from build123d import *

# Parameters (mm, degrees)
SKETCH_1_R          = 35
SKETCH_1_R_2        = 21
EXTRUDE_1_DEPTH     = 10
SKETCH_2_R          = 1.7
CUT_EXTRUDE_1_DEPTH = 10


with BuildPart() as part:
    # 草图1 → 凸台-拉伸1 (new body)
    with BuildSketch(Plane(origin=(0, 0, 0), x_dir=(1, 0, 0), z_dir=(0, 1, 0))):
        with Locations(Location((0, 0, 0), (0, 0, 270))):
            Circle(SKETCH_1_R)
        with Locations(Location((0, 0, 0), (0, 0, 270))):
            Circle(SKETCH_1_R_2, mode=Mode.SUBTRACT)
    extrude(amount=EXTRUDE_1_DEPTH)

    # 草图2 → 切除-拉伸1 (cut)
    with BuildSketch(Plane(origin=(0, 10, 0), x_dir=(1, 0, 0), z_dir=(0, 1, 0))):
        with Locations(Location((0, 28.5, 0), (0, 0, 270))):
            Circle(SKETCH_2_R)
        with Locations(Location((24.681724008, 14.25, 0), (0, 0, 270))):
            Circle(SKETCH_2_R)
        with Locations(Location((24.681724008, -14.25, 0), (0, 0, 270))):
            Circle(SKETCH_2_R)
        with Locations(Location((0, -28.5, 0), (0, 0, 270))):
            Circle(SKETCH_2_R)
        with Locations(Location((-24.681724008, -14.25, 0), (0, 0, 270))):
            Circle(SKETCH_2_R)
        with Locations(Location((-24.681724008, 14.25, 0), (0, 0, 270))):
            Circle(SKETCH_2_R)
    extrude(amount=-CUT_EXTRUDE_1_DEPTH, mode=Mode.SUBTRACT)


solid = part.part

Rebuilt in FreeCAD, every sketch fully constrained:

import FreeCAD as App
import Part
import Sketcher

V = App.Vector
Q = App.Units.Quantity

doc = App.newDocument("Part")
body = doc.addObject("PartDesign::Body", "Body")

sketch1 = doc.addObject("Sketcher::SketchObject", "Sketch")
body.addObject(sketch1)
sketch1.AttachmentSupport = (doc.XZ_Plane, [""])
sketch1.MapMode = "FlatFace"
sketch1.addGeometry(Part.Circle(V(0, 0, 0), V(0, 0, 1), 35), False)
sketch1.addGeometry(Part.Circle(V(0, 0, 0), V(0, 0, 1), 21), False)
sketch1.addConstraint(Sketcher.Constraint("Coincident", 0, 3, -1, 1))
sketch1.addConstraint(Sketcher.Constraint("Coincident", 1, 3, -1, 1))
sketch1.addConstraint(Sketcher.Constraint("Diameter", 0, Q("70 mm")))
sketch1.addConstraint(Sketcher.Constraint("Diameter", 1, Q("42 mm")))
pad1 = doc.addObject("PartDesign::Pad", "Pad")
body.addObject(pad1)
pad1.Profile = sketch1
pad1.Length = 10
pad1.Reversed = True

sketch2 = doc.addObject("Sketcher::SketchObject", "Sketch001")
body.addObject(sketch2)
sketch2.AttachmentSupport = (doc.XZ_Plane, [""])
sketch2.MapMode = "FlatFace"
sketch2.AttachmentOffset = App.Placement(V(0, 0, -10), App.Rotation())
sketch2.addGeometry(Part.Circle(V(0, -28.5, 0), V(0, 0, 1), 1.7), False)
sketch2.addGeometry(Part.Circle(V(24.7, -14.2, 0), V(0, 0, 1), 1.7), False)
sketch2.addGeometry(Part.Circle(V(24.7, 14.2, 0), V(0, 0, 1), 1.7), False)
sketch2.addGeometry(Part.Circle(V(0, 28.5, 0), V(0, 0, 1), 1.7), False)
sketch2.addGeometry(Part.Circle(V(-24.7, 14.2, 0), V(0, 0, 1), 1.7), False)
sketch2.addGeometry(Part.Circle(V(-24.7, -14.2, 0), V(0, 0, 1), 1.7), False)
sketch2.addConstraint(Sketcher.Constraint("Equal", 0, 1))
sketch2.addConstraint(Sketcher.Constraint("Equal", 1, 2))
sketch2.addConstraint(Sketcher.Constraint("Equal", 2, 3))
sketch2.addConstraint(Sketcher.Constraint("Equal", 3, 4))
sketch2.addConstraint(Sketcher.Constraint("Equal", 4, 5))
sketch2.addConstraint(Sketcher.Constraint("Symmetric", 0, 3, 3, 3, -1, 1))
sketch2.addConstraint(Sketcher.Constraint("Symmetric", 1, 3, 4, 3, -1, 1))
sketch2.addConstraint(Sketcher.Constraint("Symmetric", 2, 3, 5, 3, -1, 1))
sketch2.addConstraint(Sketcher.Constraint("Symmetric", 2, 3, 4, 3, -2))
sketch2.addConstraint(Sketcher.Constraint("PointOnObject", 0, 3, -2))
sketch2.addConstraint(Sketcher.Constraint("Diameter", 0, Q("3.4 mm")))
sketch2.addConstraint(Sketcher.Constraint("DistanceY", 0, 3, 3, 3, Q("57 mm")))
sketch2.addConstraint(Sketcher.Constraint("DistanceY", 1, 3, 2, 3, Q("28.5 mm")))
sketch2.addConstraint(Sketcher.Constraint("DistanceX", 4, 3, 2, 3, Q("49.363448 mm")))
pocket1 = doc.addObject("PartDesign::Pocket", "Pocket")
body.addObject(pocket1)
pocket1.Profile = sketch2
pocket1.Length = 10
pocket1.Reversed = True

doc.recompute()
